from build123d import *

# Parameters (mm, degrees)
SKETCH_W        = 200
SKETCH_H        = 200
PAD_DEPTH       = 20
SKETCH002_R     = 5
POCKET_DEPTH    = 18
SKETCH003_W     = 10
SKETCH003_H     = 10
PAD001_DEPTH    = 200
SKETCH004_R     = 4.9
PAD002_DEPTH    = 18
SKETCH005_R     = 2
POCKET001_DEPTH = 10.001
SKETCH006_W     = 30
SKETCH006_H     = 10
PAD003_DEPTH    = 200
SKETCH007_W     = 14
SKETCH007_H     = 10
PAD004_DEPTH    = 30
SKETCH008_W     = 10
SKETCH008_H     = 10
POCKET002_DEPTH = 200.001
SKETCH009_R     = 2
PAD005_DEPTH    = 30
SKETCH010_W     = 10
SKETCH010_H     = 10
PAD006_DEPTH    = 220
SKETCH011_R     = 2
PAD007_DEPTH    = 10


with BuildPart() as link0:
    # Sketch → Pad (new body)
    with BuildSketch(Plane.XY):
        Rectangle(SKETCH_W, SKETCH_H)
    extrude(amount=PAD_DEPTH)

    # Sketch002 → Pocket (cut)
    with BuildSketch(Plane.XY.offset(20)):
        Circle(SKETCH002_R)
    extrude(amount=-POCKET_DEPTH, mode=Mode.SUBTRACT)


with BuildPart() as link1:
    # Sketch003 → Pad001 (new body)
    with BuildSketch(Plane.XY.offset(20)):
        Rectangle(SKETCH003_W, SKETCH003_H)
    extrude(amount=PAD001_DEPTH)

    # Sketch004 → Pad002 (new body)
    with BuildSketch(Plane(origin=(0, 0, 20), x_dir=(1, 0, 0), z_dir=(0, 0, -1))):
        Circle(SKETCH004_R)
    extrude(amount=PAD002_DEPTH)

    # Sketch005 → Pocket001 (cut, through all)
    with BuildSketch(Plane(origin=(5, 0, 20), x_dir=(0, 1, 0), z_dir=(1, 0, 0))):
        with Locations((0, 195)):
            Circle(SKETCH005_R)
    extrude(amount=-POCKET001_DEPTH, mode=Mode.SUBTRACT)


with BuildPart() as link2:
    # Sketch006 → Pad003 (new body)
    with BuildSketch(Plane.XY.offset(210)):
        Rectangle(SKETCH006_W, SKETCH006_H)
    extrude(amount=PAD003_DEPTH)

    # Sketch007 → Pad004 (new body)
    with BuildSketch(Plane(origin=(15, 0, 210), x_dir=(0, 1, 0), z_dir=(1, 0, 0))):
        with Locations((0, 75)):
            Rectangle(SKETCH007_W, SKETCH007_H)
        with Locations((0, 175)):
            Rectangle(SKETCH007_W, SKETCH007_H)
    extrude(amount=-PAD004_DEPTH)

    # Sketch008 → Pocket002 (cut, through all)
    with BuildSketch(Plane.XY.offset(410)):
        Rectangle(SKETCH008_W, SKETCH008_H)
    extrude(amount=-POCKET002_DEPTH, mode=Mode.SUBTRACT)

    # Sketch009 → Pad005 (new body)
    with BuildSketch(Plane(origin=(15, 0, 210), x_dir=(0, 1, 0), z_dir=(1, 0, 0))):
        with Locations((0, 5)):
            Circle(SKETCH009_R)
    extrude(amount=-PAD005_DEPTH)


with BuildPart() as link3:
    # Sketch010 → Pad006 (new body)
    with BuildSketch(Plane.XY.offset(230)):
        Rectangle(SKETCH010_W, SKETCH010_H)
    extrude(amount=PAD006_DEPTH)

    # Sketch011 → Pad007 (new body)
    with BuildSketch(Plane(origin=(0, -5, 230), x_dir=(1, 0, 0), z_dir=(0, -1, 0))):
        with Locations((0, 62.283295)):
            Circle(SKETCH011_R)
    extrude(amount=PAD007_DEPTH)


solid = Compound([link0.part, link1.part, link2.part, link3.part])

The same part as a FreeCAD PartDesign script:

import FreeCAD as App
import Part
import Sketcher
from FreeCAD import Vector
Q = App.Units.Quantity

doc = App.newDocument("Part")
body = doc.addObject("PartDesign::Body", "Body")

sketch1 = body.newObject("Sketcher::SketchObject", "Sketch")
sketch1.AttachmentSupport = (doc.getObject("XY_Plane"), [""])
sketch1.MapMode = "FlatFace"
sketch1.addGeometry(Part.LineSegment(Vector(-100, 100, 0), Vector(-100, -100, 0)), False)
sketch1.addGeometry(Part.LineSegment(Vector(-100, -100, 0), Vector(100, -100, 0)), False)
sketch1.addGeometry(Part.LineSegment(Vector(100, -100, 0), Vector(100, 100, 0)), False)
sketch1.addGeometry(Part.LineSegment(Vector(100, 100, 0), Vector(-100, 100, 0)), False)
sketch1.addConstraint(Sketcher.Constraint("Coincident", 0, 2, 1, 1))
sketch1.addConstraint(Sketcher.Constraint("Coincident", 1, 2, 2, 1))
sketch1.addConstraint(Sketcher.Constraint("Coincident", 2, 2, 3, 1))
sketch1.addConstraint(Sketcher.Constraint("Coincident", 3, 2, 0, 1))
sketch1.addConstraint(Sketcher.Constraint("Vertical", 0))
sketch1.addConstraint(Sketcher.Constraint("Horizontal", 1))
sketch1.addConstraint(Sketcher.Constraint("Vertical", 2))
sketch1.addConstraint(Sketcher.Constraint("Horizontal", 3))
sketch1.addConstraint(Sketcher.Constraint("Symmetric", 0, 2, 2, 2, -1, 1))
sketch1.addConstraint(Sketcher.Constraint("Equal", 3, 0))
sketch1.addConstraint(Sketcher.Constraint("DistanceX", 1, 1, 1, 2, Q("200 mm")))
pad1 = body.newObject("PartDesign::Pad", "Pad")
pad1.Profile = sketch1
pad1.Length = 20

sketch2 = body.newObject("Sketcher::SketchObject", "Sketch001")
sketch2.AttachmentSupport = (doc.getObject("XY_Plane"), [""])
sketch2.MapMode = "FlatFace"
sketch2.AttachmentOffset = App.Placement(Vector(0, 0, 20), App.Rotation())
sketch2.addGeometry(Part.Circle(Vector(0, 0, 0), Vector(0, 0, 1), 5), False)
sketch2.addConstraint(Sketcher.Constraint("Coincident", 0, 3, -1, 1))
sketch2.addConstraint(Sketcher.Constraint("Diameter", 0, Q("10 mm")))
pocket1 = body.newObject("PartDesign::Pocket", "Pocket")
pocket1.Profile = sketch2
pocket1.Length = 18
body2 = doc.addObject("PartDesign::Body", "Body001")

sketch3 = body2.newObject("Sketcher::SketchObject", "Sketch002")
sketch3.AttachmentSupport = (doc.getObject("XY_Plane001"), [""])
sketch3.MapMode = "FlatFace"
sketch3.AttachmentOffset = App.Placement(Vector(0, 0, 20), App.Rotation())
sketch3.addGeometry(Part.LineSegment(Vector(-5, 5, 0), Vector(-5, -5, 0)), False)
sketch3.addGeometry(Part.LineSegment(Vector(-5, -5, 0), Vector(5, -5, 0)), False)
sketch3.addGeometry(Part.LineSegment(Vector(5, -5, 0), Vector(5, 5, 0)), False)
sketch3.addGeometry(Part.LineSegment(Vector(5, 5, 0), Vector(-5, 5, 0)), False)
sketch3.addConstraint(Sketcher.Constraint("Coincident", 0, 2, 1, 1))
sketch3.addConstraint(Sketcher.Constraint("Coincident", 1, 2, 2, 1))
sketch3.addConstraint(Sketcher.Constraint("Coincident", 2, 2, 3, 1))
sketch3.addConstraint(Sketcher.Constraint("Coincident", 3, 2, 0, 1))
sketch3.addConstraint(Sketcher.Constraint("Vertical", 0))
sketch3.addConstraint(Sketcher.Constraint("Horizontal", 1))
sketch3.addConstraint(Sketcher.Constraint("Vertical", 2))
sketch3.addConstraint(Sketcher.Constraint("Horizontal", 3))
sketch3.addConstraint(Sketcher.Constraint("Symmetric", 0, 2, 2, 2, -1, 1))
sketch3.addConstraint(Sketcher.Constraint("Equal", 3, 0))
sketch3.addConstraint(Sketcher.Constraint("DistanceX", 1, 1, 1, 2, Q("10 mm")))
pad2 = body2.newObject("PartDesign::Pad", "Pad001")
pad2.Profile = sketch3
pad2.Length = 200

sketch4 = body2.newObject("Sketcher::SketchObject", "Sketch003")
sketch4.AttachmentSupport = (doc.getObject("XY_Plane001"), [""])
sketch4.MapMode = "FlatFace"
sketch4.AttachmentOffset = App.Placement(Vector(0, 0, 20), App.Rotation())
sketch4.addGeometry(Part.Circle(Vector(0, 0, 0), Vector(0, 0, 1), 4.9), False)
sketch4.addConstraint(Sketcher.Constraint("Coincident", 0, 3, -1, 1))
sketch4.addConstraint(Sketcher.Constraint("Diameter", 0, Q("9.8 mm")))
pad3 = body2.newObject("PartDesign::Pad", "Pad002")
pad3.Profile = sketch4
pad3.Length = 18
pad3.Reversed = True

sketch5 = body2.newObject("Sketcher::SketchObject", "Sketch004")
sketch5.AttachmentSupport = (doc.getObject("YZ_Plane001"), [""])
sketch5.MapMode = "FlatFace"
sketch5.AttachmentOffset = App.Placement(Vector(0, 0, 5), App.Rotation())
sketch5.addGeometry(Part.Circle(Vector(0, 215, 0), Vector(0, 0, 1), 2), False)
sketch5.addConstraint(Sketcher.Constraint("PointOnObject", 0, 3, -2))
sketch5.addConstraint(Sketcher.Constraint("Diameter", 0, Q("4 mm")))
sketch5.addConstraint(Sketcher.Constraint("DistanceY", -1, 1, 0, 3, Q("215 mm")))
pocket2 = body2.newObject("PartDesign::Pocket", "Pocket001")
pocket2.Profile = sketch5
pocket2.Type = "ThroughAll"
body3 = doc.addObject("PartDesign::Body", "Body002")

sketch6 = body3.newObject("Sketcher::SketchObject", "Sketch005")
sketch6.AttachmentSupport = (doc.getObject("XY_Plane002"), [""])
sketch6.MapMode = "FlatFace"
sketch6.AttachmentOffset = App.Placement(Vector(0, 0, 210), App.Rotation())
sketch6.addGeometry(Part.LineSegment(Vector(-15, 5, 0), Vector(-15, -5, 0)), False)
sketch6.addGeometry(Part.LineSegment(Vector(-15, -5, 0), Vector(15, -5, 0)), False)
sketch6.addGeometry(Part.LineSegment(Vector(15, -5, 0), Vector(15, 5, 0)), False)
sketch6.addGeometry(Part.LineSegment(Vector(15, 5, 0), Vector(-15, 5, 0)), False)
sketch6.addConstraint(Sketcher.Constraint("Coincident", 0, 2, 1, 1))
sketch6.addConstraint(Sketcher.Constraint("Coincident", 1, 2, 2, 1))
sketch6.addConstraint(Sketcher.Constraint("Coincident", 2, 2, 3, 1))
sketch6.addConstraint(Sketcher.Constraint("Coincident", 3, 2, 0, 1))
sketch6.addConstraint(Sketcher.Constraint("Vertical", 0))
sketch6.addConstraint(Sketcher.Constraint("Horizontal", 1))
sketch6.addConstraint(Sketcher.Constraint("Vertical", 2))
sketch6.addConstraint(Sketcher.Constraint("Horizontal", 3))
sketch6.addConstraint(Sketcher.Constraint("Symmetric", 0, 2, 2, 2, -1, 1))
sketch6.addConstraint(Sketcher.Constraint("DistanceX", 1, 1, 1, 2, Q("30 mm")))
sketch6.addConstraint(Sketcher.Constraint("DistanceY", 0, 2, 0, 1, Q("10 mm")))
pad4 = body3.newObject("PartDesign::Pad", "Pad003")
pad4.Profile = sketch6
pad4.Length = 200

sketch7 = body3.newObject("Sketcher::SketchObject", "Sketch006")
sketch7.AttachmentSupport = (doc.getObject("YZ_Plane002"), [""])
sketch7.MapMode = "FlatFace"
sketch7.AttachmentOffset = App.Placement(Vector(0, 0, 15), App.Rotation())
sketch7.addGeometry(Part.LineSegment(Vector(-7, 290, 0), Vector(-7, 280, 0)), False)
sketch7.addGeometry(Part.LineSegment(Vector(-7, 280, 0), Vector(7, 280, 0)), False)
sketch7.addGeometry(Part.LineSegment(Vector(7, 280, 0), Vector(7, 290, 0)), False)
sketch7.addGeometry(Part.LineSegment(Vector(7, 290, 0), Vector(-7, 290, 0)), False)
sketch7.addGeometry(Part.LineSegment(Vector(-7, 390, 0), Vector(-7, 380, 0)), False)
sketch7.addGeometry(Part.LineSegment(Vector(-7, 380, 0), Vector(7, 380, 0)), False)
sketch7.addGeometry(Part.LineSegment(Vector(7, 380, 0), Vector(7, 390, 0)), False)
sketch7.addGeometry(Part.LineSegment(Vector(7, 390, 0), Vector(-7, 390, 0)), False)
sketch7.addConstraint(Sketcher.Constraint("Coincident", 0, 2, 1, 1))
sketch7.addConstraint(Sketcher.Constraint("Coincident", 1, 2, 2, 1))
sketch7.addConstraint(Sketcher.Constraint("Coincident", 2, 2, 3, 1))
sketch7.addConstraint(Sketcher.Constraint("Coincident", 3, 2, 0, 1))
sketch7.addConstraint(Sketcher.Constraint("Coincident", 4, 2, 5, 1))
sketch7.addConstraint(Sketcher.Constraint("Coincident", 5, 2, 6, 1))
sketch7.addConstraint(Sketcher.Constraint("Coincident", 6, 2, 7, 1))
sketch7.addConstraint(Sketcher.Constraint("Coincident", 7, 2, 4, 1))
sketch7.addConstraint(Sketcher.Constraint("Vertical", 0))
sketch7.addConstraint(Sketcher.Constraint("Horizontal", 1))
sketch7.addConstraint(Sketcher.Constraint("Vertical", 2))
sketch7.addConstraint(Sketcher.Constraint("Horizontal", 3))
sketch7.addConstraint(Sketcher.Constraint("Vertical", 4))
sketch7.addConstraint(Sketcher.Constraint("Horizontal", 5))
sketch7.addConstraint(Sketcher.Constraint("Vertical", 6))
sketch7.addConstraint(Sketcher.Constraint("Horizontal", 7))
sketch7.addConstraint(Sketcher.Constraint("Vertical", 3, 2, 4, 2))
sketch7.addConstraint(Sketcher.Constraint("Vertical", 2, 2, 5, 2))
sketch7.addConstraint(Sketcher.Constraint("Equal", 2, 4))
sketch7.addConstraint(Sketcher.Constraint("DistanceX", 1, 1, 1, 2, Q("14 mm")))
sketch7.addConstraint(Sketcher.Constraint("DistanceY", 0, 2, 0, 1, Q("10 mm")))
sketch7.addConstraint(Sketcher.Constraint("DistanceX", 0, 2, -1, 1, Q("7 mm")))
sketch7.addConstraint(Sketcher.Constraint("DistanceY", -1, 1, 0, 2, Q("280 mm")))
sketch7.addConstraint(Sketcher.Constraint("DistanceY", -1, 1, 4, 2, Q("380 mm")))
pad5 = body3.newObject("PartDesign::Pad", "Pad004")
pad5.Profile = sketch7
pad5.Length = 30
pad5.Reversed = True

sketch8 = body3.newObject("Sketcher::SketchObject", "Sketch007")
sketch8.AttachmentSupport = (doc.getObject("XY_Plane002"), [""])
sketch8.MapMode = "FlatFace"
sketch8.AttachmentOffset = App.Placement(Vector(0, 0, 410), App.Rotation())
sketch8.addGeometry(Part.LineSegment(Vector(-5, 5, 0), Vector(-5, -5, 0)), False)
sketch8.addGeometry(Part.LineSegment(Vector(-5, -5, 0), Vector(5, -5, 0)), False)
sketch8.addGeometry(Part.LineSegment(Vector(5, -5, 0), Vector(5, 5, 0)), False)
sketch8.addGeometry(Part.LineSegment(Vector(5, 5, 0), Vector(-5, 5, 0)), False)
sketch8.addConstraint(Sketcher.Constraint("Coincident", 0, 2, 1, 1))
sketch8.addConstraint(Sketcher.Constraint("Coincident", 1, 2, 2, 1))
sketch8.addConstraint(Sketcher.Constraint("Coincident", 2, 2, 3, 1))
sketch8.addConstraint(Sketcher.Constraint("Coincident", 3, 2, 0, 1))
sketch8.addConstraint(Sketcher.Constraint("Vertical", 0))
sketch8.addConstraint(Sketcher.Constraint("Horizontal", 1))
sketch8.addConstraint(Sketcher.Constraint("Vertical", 2))
sketch8.addConstraint(Sketcher.Constraint("Horizontal", 3))
sketch8.addConstraint(Sketcher.Constraint("Symmetric", 0, 2, 2, 2, -1, 1))
sketch8.addConstraint(Sketcher.Constraint("Equal", 3, 0))
sketch8.addConstraint(Sketcher.Constraint("DistanceX", 1, 1, 1, 2, Q("10 mm")))
pocket3 = body3.newObject("PartDesign::Pocket", "Pocket002")
pocket3.Profile = sketch8
pocket3.Type = "ThroughAll"

sketch9 = body3.newObject("Sketcher::SketchObject", "Sketch008")
sketch9.AttachmentSupport = (doc.getObject("YZ_Plane002"), [""])
sketch9.MapMode = "FlatFace"
sketch9.AttachmentOffset = App.Placement(Vector(0, 0, 15), App.Rotation())
sketch9.addGeometry(Part.Circle(Vector(0, 215, 0), Vector(0, 0, 1), 2), False)
sketch9.addConstraint(Sketcher.Constraint("PointOnObject", 0, 3, -2))
sketch9.addConstraint(Sketcher.Constraint("Diameter", 0, Q("4 mm")))
sketch9.addConstraint(Sketcher.Constraint("DistanceY", -1, 1, 0, 3, Q("215 mm")))
pad6 = body3.newObject("PartDesign::Pad", "Pad005")
pad6.Profile = sketch9
pad6.Length = 30
pad6.Reversed = True
body4 = doc.addObject("PartDesign::Body", "Body003")

sketch10 = body4.newObject("Sketcher::SketchObject", "Sketch009")
sketch10.AttachmentSupport = (doc.getObject("XY_Plane003"), [""])
sketch10.MapMode = "FlatFace"
sketch10.AttachmentOffset = App.Placement(Vector(0, 0, 230), App.Rotation())
sketch10.addGeometry(Part.LineSegment(Vector(-5, 5, 0), Vector(-5, -5, 0)), False)
sketch10.addGeometry(Part.LineSegment(Vector(-5, -5, 0), Vector(5, -5, 0)), False)
sketch10.addGeometry(Part.LineSegment(Vector(5, -5, 0), Vector(5, 5, 0)), False)
sketch10.addGeometry(Part.LineSegment(Vector(5, 5, 0), Vector(-5, 5, 0)), False)
sketch10.addConstraint(Sketcher.Constraint("Coincident", 0, 2, 1, 1))
sketch10.addConstraint(Sketcher.Constraint("Coincident", 1, 2, 2, 1))
sketch10.addConstraint(Sketcher.Constraint("Coincident", 2, 2, 3, 1))
sketch10.addConstraint(Sketcher.Constraint("Coincident", 3, 2, 0, 1))
sketch10.addConstraint(Sketcher.Constraint("Vertical", 0))
sketch10.addConstraint(Sketcher.Constraint("Horizontal", 1))
sketch10.addConstraint(Sketcher.Constraint("Vertical", 2))
sketch10.addConstraint(Sketcher.Constraint("Horizontal", 3))
sketch10.addConstraint(Sketcher.Constraint("Symmetric", 0, 2, 2, 2, -1, 1))
sketch10.addConstraint(Sketcher.Constraint("Equal", 3, 0))
sketch10.addConstraint(Sketcher.Constraint("DistanceX", 1, 1, 1, 2, Q("10 mm")))
pad7 = body4.newObject("PartDesign::Pad", "Pad006")
pad7.Profile = sketch10
pad7.Length = 220

sketch11 = body4.newObject("Sketcher::SketchObject", "Sketch010")
sketch11.AttachmentSupport = (doc.getObject("XZ_Plane003"), [""])
sketch11.MapMode = "FlatFace"
sketch11.AttachmentOffset = App.Placement(Vector(0, 0, 5), App.Rotation())
sketch11.addGeometry(Part.Circle(Vector(0, 292.283295, 0), Vector(0, 0, 1), 2), False)
sketch11.addConstraint(Sketcher.Constraint("PointOnObject", 0, 3, -2))
sketch11.addConstraint(Sketcher.Constraint("Diameter", 0, Q("4 mm")))
sketch11.addConstraint(Sketcher.Constraint("DistanceY", -1, 1, 0, 3, Q("292.283295 mm")))
pad8 = body4.newObject("PartDesign::Pad", "Pad007")
pad8.Profile = sketch11
pad8.Length = 10

doc.recompute()
